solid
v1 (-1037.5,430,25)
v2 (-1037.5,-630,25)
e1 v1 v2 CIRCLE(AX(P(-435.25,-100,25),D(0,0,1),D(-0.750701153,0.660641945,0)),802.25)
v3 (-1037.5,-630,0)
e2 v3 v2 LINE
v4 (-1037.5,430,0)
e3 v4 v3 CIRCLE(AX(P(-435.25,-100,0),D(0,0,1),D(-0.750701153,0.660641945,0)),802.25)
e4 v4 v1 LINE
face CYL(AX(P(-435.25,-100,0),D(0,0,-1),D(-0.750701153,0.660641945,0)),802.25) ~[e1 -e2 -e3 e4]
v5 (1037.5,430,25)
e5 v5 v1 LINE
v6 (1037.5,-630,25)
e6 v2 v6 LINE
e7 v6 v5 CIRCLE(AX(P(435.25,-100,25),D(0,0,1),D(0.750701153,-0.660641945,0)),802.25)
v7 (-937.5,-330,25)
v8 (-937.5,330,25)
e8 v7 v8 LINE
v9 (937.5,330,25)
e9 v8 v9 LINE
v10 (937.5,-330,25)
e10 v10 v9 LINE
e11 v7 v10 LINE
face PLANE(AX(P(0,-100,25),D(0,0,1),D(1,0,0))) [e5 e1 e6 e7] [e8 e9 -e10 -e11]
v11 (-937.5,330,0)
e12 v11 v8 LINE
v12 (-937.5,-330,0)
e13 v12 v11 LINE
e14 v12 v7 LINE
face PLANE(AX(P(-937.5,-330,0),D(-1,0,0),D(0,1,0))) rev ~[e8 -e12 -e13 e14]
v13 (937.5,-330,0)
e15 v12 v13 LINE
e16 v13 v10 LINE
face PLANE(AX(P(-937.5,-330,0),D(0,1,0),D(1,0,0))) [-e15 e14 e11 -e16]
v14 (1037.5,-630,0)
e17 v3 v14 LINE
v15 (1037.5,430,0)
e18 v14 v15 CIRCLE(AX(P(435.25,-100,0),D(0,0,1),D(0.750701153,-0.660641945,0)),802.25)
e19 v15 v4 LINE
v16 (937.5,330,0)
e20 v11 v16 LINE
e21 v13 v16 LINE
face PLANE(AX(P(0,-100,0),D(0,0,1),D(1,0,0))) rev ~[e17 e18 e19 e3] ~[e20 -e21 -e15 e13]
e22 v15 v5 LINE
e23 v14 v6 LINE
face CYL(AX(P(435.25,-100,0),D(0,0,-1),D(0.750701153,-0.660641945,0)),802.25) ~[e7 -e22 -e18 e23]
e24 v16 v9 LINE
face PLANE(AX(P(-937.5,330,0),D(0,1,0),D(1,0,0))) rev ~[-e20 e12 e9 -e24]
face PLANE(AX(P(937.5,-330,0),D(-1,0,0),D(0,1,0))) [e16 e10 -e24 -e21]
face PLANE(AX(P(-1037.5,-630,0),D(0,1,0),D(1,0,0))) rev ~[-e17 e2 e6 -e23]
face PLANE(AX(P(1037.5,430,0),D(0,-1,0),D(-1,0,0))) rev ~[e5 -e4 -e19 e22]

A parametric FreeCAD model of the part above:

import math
import FreeCAD as App
import Part
import Sketcher

V = App.Vector
Q = App.Units.Quantity


def add_polygon(sketch, points):
    """Adds a closed chain of lines whose ends are joined by coincident constraints."""
    first, n = sketch.GeometryCount, len(points)
    for a, b in zip(points, points[1:] + points[:1]):
        sketch.addGeometry(Part.LineSegment(App.Vector(*a, 0), App.Vector(*b, 0)), False)
    for i in range(n):
        sketch.addConstraint(Sketcher.Constraint("Coincident", first + i, 2, first + (i + 1) % n, 1))

doc = App.newDocument("Part")
params = doc.addObject("Spreadsheet::Sheet", "Params")
for row, (alias, value) in enumerate([
    ("sketch1_width", "2075 mm"),
    ("sketch1_width2", "1875 mm"),
    ("sketch1_height", "660 mm"),
    ("sketch1_radius", "802.25 mm"),
    ("pad1_length", "25 mm"),
], start=1):
    params.set(f"A{row}", alias)
    params.set(f"B{row}", "=" + value)
    params.setAlias(f"B{row}", alias)

body = doc.addObject("PartDesign::Body", "Body")

# Sketch on XY plane
sketch1 = body.newObject("Sketcher::SketchObject", "Sketch")
sketch1.AttachmentSupport = (doc.getObject("XY_Plane"), [""])
sketch1.MapMode = "FlatFace"
sketch1.addGeometry(Part.LineSegment(V(1038, 430, 0), V(-1038, 430, 0)), False)  # 0
sketch1.addGeometry(Part.ArcOfCircle(Part.Circle(V(-435, -100, 0), V(0, 0, 1), 802), math.radians(139), math.radians(221)), False)  # 1
sketch1.addGeometry(Part.LineSegment(V(-1038, -630, 0), V(1038, -630, 0)), False)  # 2
sketch1.addGeometry(Part.ArcOfCircle(Part.Circle(V(435, -100, 0), V(0, 0, 1), 802), math.radians(-41), math.radians(41)), False)  # 3
add_polygon(sketch1, [(938, -330), (-938, -330), (-938, 330), (938, 330)])  # lines 4-7
sketch1.addConstraint([
    Sketcher.Constraint("Coincident", 0, 2, 1, 1),
    Sketcher.Constraint("Coincident", 1, 2, 2, 1),
    Sketcher.Constraint("Coincident", 2, 2, 3, 1),
    Sketcher.Constraint("Coincident", 3, 2, 0, 1),
    Sketcher.Constraint("Horizontal", 0),
    Sketcher.Constraint("Horizontal", 2),
    Sketcher.Constraint("Horizontal", 4),
    Sketcher.Constraint("Vertical", 5),
    Sketcher.Constraint("Horizontal", 6),
    Sketcher.Constraint("Vertical", 7),
    Sketcher.Constraint("Equal", 1, 3),
    Sketcher.Constraint("Symmetric", 4, 2, 6, 2, -1, 1),
    Sketcher.Constraint("Symmetric", 1, 3, 3, 3, -2),
    Sketcher.Constraint("Equal", 0, 2),
    Sketcher.Constraint("DistanceX", 0, 2, 0, 1, Q("2075 mm")),
    Sketcher.Constraint("DistanceX", 4, 2, 4, 1, Q("1875 mm")),
    Sketcher.Constraint("DistanceY", 5, 1, 5, 2, Q("660 mm")),
    Sketcher.Constraint("Radius", 1, Q("802.25 mm")),
    Sketcher.Constraint("DistanceY", 1, 3, -1, 1, Q("100 mm")),
    Sketcher.Constraint("DistanceY", -1, 1, 0, 2, Q("430 mm")),
])
sketch1.setExpression("Constraints[18]", "Params.sketch1_width")
sketch1.setExpression("Constraints[19]", "Params.sketch1_width2")
sketch1.setExpression("Constraints[20]", "Params.sketch1_height")
sketch1.setExpression("Constraints[21]", "Params.sketch1_radius")
pad1 = body.newObject("PartDesign::Pad", "Pad")
pad1.Profile = sketch1
pad1.setExpression("Length", "Params.pad1_length")

doc.recompute()
